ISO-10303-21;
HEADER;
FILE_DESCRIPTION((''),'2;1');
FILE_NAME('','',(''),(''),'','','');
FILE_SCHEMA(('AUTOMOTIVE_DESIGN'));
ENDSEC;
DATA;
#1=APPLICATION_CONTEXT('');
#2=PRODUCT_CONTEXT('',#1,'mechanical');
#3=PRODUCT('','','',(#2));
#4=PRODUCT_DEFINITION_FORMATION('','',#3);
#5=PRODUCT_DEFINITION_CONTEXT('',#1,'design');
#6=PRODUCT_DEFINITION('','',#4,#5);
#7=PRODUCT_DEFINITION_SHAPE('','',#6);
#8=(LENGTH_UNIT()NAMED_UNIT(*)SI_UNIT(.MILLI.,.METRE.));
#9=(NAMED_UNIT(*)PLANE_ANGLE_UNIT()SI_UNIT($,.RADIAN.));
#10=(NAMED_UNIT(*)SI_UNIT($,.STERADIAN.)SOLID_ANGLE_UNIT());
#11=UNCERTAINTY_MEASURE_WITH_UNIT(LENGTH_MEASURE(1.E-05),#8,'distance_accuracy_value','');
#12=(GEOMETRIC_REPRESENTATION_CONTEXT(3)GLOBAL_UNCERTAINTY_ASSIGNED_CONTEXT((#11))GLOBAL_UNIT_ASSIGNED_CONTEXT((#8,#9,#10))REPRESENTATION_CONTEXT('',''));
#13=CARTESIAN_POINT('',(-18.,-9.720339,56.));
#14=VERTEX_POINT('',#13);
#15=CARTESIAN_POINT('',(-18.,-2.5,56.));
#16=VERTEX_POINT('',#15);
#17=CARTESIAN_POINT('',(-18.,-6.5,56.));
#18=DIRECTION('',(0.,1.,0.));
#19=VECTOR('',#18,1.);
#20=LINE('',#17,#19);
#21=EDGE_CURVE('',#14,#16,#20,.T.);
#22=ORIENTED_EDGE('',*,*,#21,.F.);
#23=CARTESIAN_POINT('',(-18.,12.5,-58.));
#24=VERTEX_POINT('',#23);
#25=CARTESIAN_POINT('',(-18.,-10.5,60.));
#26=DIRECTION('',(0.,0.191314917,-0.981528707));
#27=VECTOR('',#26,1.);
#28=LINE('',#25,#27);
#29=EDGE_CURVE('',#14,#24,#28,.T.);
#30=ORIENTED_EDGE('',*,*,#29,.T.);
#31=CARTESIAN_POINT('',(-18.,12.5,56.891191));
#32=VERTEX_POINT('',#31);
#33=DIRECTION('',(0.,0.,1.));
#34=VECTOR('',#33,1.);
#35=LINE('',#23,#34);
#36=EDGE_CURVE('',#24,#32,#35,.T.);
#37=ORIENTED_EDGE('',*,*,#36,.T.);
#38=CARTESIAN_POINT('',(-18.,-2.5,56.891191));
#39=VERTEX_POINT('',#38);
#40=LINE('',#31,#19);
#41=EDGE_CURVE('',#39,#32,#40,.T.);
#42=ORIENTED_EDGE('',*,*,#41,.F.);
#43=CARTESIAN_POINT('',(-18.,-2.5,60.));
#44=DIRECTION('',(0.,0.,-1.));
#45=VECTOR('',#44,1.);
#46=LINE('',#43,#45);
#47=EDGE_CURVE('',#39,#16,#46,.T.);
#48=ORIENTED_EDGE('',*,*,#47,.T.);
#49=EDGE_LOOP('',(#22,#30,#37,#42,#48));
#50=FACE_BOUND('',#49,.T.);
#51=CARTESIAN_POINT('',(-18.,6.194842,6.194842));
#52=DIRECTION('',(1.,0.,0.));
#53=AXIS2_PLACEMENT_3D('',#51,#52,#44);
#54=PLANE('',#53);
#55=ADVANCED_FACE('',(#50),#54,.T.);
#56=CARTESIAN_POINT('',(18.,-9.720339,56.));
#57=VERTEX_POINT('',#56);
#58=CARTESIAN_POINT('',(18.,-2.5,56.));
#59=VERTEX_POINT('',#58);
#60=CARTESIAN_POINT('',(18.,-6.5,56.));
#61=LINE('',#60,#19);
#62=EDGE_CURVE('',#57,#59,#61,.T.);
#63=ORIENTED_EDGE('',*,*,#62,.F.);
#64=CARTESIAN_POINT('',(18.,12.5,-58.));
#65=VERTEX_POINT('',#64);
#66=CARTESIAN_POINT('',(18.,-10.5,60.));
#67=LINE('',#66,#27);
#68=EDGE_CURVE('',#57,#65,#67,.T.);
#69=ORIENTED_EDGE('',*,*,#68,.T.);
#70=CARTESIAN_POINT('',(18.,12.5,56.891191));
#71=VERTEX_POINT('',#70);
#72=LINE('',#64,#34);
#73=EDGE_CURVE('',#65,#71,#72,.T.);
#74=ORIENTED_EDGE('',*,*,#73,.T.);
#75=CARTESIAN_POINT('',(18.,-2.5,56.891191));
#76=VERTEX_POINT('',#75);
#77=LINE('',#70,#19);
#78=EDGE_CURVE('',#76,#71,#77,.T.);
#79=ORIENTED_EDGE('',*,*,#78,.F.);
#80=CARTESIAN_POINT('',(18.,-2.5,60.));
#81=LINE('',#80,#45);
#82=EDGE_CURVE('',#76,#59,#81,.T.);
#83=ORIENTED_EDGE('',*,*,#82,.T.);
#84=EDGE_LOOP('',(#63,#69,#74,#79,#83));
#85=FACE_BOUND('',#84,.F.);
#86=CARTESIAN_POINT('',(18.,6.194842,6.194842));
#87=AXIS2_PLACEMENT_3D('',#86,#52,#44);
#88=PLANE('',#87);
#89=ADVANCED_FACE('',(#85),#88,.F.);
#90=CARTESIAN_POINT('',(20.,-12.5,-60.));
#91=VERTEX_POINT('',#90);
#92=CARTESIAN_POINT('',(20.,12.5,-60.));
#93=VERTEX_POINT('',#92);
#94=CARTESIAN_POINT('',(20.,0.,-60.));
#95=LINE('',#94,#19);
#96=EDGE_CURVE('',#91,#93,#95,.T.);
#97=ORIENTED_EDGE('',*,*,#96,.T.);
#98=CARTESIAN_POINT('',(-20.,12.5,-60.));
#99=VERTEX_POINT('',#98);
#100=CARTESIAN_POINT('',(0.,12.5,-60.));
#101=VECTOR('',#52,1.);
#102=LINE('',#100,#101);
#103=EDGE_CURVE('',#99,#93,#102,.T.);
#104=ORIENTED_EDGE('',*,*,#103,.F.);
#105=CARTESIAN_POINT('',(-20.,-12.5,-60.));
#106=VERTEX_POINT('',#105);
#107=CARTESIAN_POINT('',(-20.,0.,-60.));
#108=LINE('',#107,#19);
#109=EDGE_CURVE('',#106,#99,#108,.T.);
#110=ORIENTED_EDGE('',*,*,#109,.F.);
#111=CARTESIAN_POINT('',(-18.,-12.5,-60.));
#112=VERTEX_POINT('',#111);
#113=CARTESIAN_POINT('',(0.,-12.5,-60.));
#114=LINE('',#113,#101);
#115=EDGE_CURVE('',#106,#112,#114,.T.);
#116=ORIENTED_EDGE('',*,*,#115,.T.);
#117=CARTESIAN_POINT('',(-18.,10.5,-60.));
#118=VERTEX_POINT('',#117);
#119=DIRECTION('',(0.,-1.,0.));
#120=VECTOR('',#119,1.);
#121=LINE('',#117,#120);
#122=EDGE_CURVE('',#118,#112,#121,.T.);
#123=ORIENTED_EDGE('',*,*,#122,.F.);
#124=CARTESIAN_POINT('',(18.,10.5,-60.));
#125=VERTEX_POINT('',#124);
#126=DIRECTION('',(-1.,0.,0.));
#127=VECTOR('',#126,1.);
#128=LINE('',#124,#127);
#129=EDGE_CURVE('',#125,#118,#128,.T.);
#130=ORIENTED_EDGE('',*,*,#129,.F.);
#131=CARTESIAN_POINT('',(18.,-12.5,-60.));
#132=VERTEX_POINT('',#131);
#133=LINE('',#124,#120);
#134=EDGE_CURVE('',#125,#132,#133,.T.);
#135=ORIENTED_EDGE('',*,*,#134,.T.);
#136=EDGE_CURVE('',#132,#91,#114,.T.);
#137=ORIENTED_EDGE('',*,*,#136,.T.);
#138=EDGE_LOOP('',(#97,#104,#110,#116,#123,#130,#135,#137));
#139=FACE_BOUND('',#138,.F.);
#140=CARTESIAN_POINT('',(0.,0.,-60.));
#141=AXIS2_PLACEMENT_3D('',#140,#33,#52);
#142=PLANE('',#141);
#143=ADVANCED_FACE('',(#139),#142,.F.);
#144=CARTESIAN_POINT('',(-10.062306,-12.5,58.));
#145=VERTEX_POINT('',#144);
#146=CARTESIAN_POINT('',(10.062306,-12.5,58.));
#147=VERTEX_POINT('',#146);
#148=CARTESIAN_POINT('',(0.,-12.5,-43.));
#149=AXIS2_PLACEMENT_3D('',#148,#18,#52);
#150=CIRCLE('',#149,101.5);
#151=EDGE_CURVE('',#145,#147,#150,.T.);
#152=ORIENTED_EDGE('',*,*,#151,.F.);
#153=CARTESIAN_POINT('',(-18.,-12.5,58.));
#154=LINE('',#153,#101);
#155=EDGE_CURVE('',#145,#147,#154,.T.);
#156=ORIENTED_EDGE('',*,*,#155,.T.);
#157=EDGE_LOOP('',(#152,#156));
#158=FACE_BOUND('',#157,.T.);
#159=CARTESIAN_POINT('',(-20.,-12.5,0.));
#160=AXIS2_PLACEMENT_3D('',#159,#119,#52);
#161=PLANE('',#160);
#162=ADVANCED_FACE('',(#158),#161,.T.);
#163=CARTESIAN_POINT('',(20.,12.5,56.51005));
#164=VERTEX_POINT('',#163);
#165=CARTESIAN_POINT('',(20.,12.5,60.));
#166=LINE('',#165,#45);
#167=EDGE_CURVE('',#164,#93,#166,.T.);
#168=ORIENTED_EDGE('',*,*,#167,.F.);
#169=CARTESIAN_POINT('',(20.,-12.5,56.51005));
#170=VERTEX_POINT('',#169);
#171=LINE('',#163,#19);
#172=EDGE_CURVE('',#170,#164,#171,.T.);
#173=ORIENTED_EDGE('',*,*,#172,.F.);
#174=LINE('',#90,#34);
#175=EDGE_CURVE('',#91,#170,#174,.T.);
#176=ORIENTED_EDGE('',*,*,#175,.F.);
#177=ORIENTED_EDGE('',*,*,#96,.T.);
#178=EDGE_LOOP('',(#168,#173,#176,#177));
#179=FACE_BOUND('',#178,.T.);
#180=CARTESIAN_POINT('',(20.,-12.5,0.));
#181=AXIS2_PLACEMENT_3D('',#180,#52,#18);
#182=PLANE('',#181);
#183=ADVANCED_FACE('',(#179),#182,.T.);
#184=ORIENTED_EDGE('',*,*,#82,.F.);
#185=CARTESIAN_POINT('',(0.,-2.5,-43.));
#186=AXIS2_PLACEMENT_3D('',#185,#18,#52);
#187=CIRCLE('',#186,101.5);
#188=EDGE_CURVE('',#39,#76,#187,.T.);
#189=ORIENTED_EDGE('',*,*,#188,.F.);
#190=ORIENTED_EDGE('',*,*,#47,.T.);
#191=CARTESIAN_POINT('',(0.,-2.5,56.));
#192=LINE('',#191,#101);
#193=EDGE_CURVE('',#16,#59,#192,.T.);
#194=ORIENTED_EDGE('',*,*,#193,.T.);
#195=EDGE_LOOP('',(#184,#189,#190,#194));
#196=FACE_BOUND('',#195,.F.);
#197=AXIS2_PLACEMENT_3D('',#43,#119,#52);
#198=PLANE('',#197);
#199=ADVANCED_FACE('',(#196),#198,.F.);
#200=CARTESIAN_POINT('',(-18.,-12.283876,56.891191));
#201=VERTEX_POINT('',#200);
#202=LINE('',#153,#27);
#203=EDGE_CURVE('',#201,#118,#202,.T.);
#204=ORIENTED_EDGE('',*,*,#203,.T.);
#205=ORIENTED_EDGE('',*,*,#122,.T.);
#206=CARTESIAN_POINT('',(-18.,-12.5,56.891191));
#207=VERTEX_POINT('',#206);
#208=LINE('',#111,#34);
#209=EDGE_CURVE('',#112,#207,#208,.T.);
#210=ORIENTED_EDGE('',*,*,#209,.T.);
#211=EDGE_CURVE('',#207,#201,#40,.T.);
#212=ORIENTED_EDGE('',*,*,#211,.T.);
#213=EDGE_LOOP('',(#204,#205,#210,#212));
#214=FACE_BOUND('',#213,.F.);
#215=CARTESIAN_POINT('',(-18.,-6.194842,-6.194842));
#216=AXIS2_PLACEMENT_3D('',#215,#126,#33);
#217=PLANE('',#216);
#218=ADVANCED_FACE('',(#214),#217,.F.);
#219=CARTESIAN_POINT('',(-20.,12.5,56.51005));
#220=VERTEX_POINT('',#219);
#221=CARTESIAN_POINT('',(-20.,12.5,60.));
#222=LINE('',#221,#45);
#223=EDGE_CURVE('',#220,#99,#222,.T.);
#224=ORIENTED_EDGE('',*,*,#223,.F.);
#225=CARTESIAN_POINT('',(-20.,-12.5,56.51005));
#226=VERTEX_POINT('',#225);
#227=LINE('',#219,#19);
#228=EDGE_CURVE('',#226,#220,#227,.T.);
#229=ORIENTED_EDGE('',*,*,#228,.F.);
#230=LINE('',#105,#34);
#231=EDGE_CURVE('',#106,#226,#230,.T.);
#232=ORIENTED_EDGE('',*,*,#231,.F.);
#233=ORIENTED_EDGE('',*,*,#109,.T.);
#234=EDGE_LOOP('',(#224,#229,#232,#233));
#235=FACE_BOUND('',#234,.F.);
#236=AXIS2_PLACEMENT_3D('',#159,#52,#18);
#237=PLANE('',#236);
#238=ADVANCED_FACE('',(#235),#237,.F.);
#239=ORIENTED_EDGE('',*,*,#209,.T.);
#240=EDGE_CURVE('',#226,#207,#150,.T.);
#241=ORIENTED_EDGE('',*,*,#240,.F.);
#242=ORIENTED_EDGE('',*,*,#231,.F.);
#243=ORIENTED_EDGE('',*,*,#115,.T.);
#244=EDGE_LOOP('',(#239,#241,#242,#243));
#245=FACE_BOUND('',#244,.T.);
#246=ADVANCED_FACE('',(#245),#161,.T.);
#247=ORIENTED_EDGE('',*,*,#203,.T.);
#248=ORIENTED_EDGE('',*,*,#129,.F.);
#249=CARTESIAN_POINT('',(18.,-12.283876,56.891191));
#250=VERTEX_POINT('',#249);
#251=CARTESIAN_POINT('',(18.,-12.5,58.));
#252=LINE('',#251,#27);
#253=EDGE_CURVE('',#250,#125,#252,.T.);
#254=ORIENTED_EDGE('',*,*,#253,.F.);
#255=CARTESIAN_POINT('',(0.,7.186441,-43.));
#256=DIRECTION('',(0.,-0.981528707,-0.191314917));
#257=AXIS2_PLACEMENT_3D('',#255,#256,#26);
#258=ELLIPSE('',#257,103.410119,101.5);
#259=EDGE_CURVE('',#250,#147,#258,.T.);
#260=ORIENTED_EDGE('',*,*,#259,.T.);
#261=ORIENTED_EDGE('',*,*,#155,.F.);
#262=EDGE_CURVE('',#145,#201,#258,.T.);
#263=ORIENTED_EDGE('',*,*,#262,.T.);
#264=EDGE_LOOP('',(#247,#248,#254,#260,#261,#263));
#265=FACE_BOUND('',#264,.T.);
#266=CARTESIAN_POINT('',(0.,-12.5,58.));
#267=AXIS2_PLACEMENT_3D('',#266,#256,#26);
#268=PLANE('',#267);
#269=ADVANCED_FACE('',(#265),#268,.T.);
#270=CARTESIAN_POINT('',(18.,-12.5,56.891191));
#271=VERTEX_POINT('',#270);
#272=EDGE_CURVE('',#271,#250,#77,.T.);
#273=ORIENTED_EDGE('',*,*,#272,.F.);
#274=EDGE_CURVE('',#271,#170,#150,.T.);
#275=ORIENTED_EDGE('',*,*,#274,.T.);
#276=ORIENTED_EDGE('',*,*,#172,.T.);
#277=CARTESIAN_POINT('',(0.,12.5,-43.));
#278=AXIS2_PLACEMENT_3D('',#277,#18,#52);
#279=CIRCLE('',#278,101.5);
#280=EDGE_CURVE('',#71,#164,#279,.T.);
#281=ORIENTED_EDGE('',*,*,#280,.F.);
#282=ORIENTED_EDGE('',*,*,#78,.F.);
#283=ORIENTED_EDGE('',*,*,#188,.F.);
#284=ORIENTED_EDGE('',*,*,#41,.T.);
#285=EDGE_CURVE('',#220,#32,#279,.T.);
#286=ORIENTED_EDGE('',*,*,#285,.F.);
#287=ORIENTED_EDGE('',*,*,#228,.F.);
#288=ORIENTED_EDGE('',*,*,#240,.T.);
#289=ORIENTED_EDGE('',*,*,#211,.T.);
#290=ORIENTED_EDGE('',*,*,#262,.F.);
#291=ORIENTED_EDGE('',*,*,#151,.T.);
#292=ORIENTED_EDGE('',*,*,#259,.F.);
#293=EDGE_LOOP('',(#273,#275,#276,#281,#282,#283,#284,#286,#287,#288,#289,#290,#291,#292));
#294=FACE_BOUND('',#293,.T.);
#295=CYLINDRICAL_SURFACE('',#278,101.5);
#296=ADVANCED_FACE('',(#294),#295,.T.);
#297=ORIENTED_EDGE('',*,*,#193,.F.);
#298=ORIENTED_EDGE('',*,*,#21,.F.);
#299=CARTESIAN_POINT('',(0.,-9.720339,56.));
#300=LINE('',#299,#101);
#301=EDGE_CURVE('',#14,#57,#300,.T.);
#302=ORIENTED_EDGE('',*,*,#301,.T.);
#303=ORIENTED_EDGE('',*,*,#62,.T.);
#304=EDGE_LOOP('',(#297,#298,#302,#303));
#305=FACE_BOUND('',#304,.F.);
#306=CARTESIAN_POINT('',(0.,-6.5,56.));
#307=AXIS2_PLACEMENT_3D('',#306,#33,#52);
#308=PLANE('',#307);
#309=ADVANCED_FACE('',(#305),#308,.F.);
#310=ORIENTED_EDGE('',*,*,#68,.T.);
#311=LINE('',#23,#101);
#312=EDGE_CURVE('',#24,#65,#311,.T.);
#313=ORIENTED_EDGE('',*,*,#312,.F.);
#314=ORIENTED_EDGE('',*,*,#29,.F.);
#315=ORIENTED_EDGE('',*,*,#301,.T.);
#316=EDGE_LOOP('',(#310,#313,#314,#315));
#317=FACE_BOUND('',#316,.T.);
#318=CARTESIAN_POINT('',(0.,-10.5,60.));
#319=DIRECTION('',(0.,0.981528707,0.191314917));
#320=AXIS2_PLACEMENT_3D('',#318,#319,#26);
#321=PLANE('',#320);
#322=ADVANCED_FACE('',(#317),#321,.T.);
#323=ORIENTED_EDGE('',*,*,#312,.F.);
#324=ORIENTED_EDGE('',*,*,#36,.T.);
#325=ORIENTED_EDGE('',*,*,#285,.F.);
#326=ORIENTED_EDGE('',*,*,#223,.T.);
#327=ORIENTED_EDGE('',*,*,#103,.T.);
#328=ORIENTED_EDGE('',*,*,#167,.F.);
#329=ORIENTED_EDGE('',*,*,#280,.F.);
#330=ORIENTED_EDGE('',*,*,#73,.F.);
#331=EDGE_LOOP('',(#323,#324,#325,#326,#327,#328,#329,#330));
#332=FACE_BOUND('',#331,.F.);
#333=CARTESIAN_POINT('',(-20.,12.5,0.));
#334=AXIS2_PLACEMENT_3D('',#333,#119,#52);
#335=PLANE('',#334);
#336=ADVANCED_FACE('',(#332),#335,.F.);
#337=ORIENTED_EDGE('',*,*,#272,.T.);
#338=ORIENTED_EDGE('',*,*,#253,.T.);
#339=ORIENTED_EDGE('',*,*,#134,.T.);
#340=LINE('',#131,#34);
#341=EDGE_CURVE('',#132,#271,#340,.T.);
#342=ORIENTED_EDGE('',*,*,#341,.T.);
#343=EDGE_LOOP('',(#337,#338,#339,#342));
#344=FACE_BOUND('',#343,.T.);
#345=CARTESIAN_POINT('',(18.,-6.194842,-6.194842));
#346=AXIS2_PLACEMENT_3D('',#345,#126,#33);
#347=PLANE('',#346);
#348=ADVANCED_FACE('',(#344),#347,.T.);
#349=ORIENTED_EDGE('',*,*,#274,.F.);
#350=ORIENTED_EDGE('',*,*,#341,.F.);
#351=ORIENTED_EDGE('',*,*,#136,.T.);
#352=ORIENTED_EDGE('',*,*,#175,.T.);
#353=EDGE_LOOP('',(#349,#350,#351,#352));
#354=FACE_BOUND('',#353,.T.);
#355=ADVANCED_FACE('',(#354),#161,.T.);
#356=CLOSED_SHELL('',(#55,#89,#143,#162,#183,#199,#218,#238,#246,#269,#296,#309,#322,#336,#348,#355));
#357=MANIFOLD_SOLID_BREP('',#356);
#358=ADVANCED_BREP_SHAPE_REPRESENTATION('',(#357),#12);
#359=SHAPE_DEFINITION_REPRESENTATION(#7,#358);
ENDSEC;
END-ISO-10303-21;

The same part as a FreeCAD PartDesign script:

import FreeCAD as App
import Part
import Sketcher
from FreeCAD import Vector

doc = App.newDocument("Part")
body = doc.addObject("PartDesign::Body", "Body")

# Sketch on XY plane
sketch1 = body.newObject("Sketcher::SketchObject", "Sketch")
sketch1.AttachmentSupport = (doc.getObject("XY_Plane"), [""])
sketch1.MapMode = "FlatFace"
sketch1.addGeometry([
    Part.LineSegment(Vector(-20, 12.5, 0), Vector(-20, -12.5, 0)),
    Part.LineSegment(Vector(-20, -12.5, 0), Vector(20, -12.5, 0)),
    Part.LineSegment(Vector(20, -12.5, 0), Vector(20, 12.5, 0)),
    Part.LineSegment(Vector(20, 12.5, 0), Vector(-20, 12.5, 0)),
], False)
sketch1.addConstraint([
    Sketcher.Constraint("Coincident", 0, 2, 1, 1),
    Sketcher.Constraint("Coincident", 1, 2, 2, 1),
    Sketcher.Constraint("Coincident", 2, 2, 3, 1),
    Sketcher.Constraint("Coincident", 3, 2, 0, 1),
    Sketcher.Constraint("Vertical", 0),
    Sketcher.Constraint("Horizontal", 1),
    Sketcher.Constraint("Vertical", 2),
    Sketcher.Constraint("Horizontal", 3),
    Sketcher.Constraint("Symmetric", 0, 2, 2, 2, -1, 1),
    Sketcher.Constraint("DistanceX", 1, 1, 1, 2, 40.0),
    Sketcher.Constraint("DistanceY", 0, 2, 0, 1, 25.0),
])
pad1 = body.newObject("PartDesign::Pad", "Pad")
pad1.Profile = sketch1
pad1.Length = 120
pad1.Midplane = True

# Sketch on YZ plane
sketch2 = body.newObject("Sketcher::SketchObject", "Sketch001")
sketch2.AttachmentSupport = (doc.getObject("YZ_Plane"), [""])
sketch2.MapMode = "FlatFace"
sketch2.addGeometry([
    Part.LineSegment(Vector(-10.5, 60, 0), Vector(12.5, -58, 0)),  # 0
    Part.LineSegment(Vector(12.5, -58, 0), Vector(12.5, 60, 0)),  # 1
    Part.LineSegment(Vector(12.5, 60, 0), Vector(-10.5, 60, 0)),  # 2
    Part.LineSegment(Vector(10.5, -60, 0), Vector(-12.5, 58, 0)),  # 3
    Part.LineSegment(Vector(-12.5, 58, 0), Vector(-12.5, -60, 0)),  # 4
    Part.LineSegment(Vector(-12.5, -60, 0), Vector(10.5, -60, 0)),  # 5
], False)
sketch2.addConstraint([
    Sketcher.Constraint("Coincident", 0, 2, 1, 1),
    Sketcher.Constraint("Coincident", 1, 2, 2, 1),
    Sketcher.Constraint("Coincident", 2, 2, 0, 1),
    Sketcher.Constraint("Coincident", 3, 2, 4, 1),
    Sketcher.Constraint("Coincident", 4, 2, 5, 1),
    Sketcher.Constraint("Coincident", 5, 2, 3, 1),
    Sketcher.Constraint("Vertical", 1),
    Sketcher.Constraint("Horizontal", 2),
    Sketcher.Constraint("Vertical", 4),
    Sketcher.Constraint("Horizontal", 5),
    Sketcher.Constraint("Symmetric", 0, 2, 3, 2, -1, 1),
    Sketcher.Constraint("Symmetric", 2, 2, 5, 2, -1, 1),
    Sketcher.Constraint("DistanceX", 2, 2, 2, 1, 23.0),
    Sketcher.Constraint("DistanceY", 1, 1, 1, 2, 118.0),
    Sketcher.Constraint("DistanceY", 0, 2, -1, 1, 58.0),
    Sketcher.Constraint("DistanceX", 3, 2, 2, 2, 2.0),
])
pocket1 = body.newObject("PartDesign::Pocket", "Pocket")
pocket1.Profile = sketch2
pocket1.Length = 36
pocket1.Midplane = True

# Sketch on XY plane
sketch3 = body.newObject("Sketcher::SketchObject", "Sketch002")
sketch3.AttachmentSupport = (doc.getObject("XY_Plane"), [""])
sketch3.MapMode = "FlatFace"
sketch3.AttachmentOffset = App.Placement(Vector(0, 0, 60), App.Rotation())
sketch3.addGeometry([
    Part.LineSegment(Vector(-18, -2.5, 0), Vector(-18, -10.5, 0)),
    Part.LineSegment(Vector(-18, -10.5, 0), Vector(18, -10.5, 0)),
    Part.LineSegment(Vector(18, -10.5, 0), Vector(18, -2.5, 0)),
    Part.LineSegment(Vector(18, -2.5, 0), Vector(-18, -2.5, 0)),
], False)
sketch3.addConstraint([
    Sketcher.Constraint("Coincident", 0, 2, 1, 1),
    Sketcher.Constraint("Coincident", 1, 2, 2, 1),
    Sketcher.Constraint("Coincident", 2, 2, 3, 1),
    Sketcher.Constraint("Coincident", 3, 2, 0, 1),
    Sketcher.Constraint("Vertical", 0),
    Sketcher.Constraint("Horizontal", 1),
    Sketcher.Constraint("Vertical", 2),
    Sketcher.Constraint("Horizontal", 3),
    Sketcher.Constraint("DistanceX", 1, 1, 1, 2, 36.0),
    Sketcher.Constraint("DistanceY", 0, 2, 0, 1, 8.0),
    Sketcher.Constraint("DistanceX", 0, 2, -1, 1, 18.0),
    Sketcher.Constraint("DistanceY", 0, 2, -1, 1, 10.5),
])
pad2 = body.newObject("PartDesign::Pad", "Pad001")
pad2.Profile = sketch3
pad2.Length = 4
pad2.Reversed = True

# Sketch on XZ plane
sketch4 = body.newObject("Sketcher::SketchObject", "Sketch003")
sketch4.AttachmentSupport = (doc.getObject("XZ_Plane"), [""])
sketch4.MapMode = "FlatFace"
sketch4.AttachmentOffset = App.Placement(Vector(0, 0, -12.5), App.Rotation())
sketch4.addGeometry([
    Part.Circle(Vector(0, -43, 0), Vector(0, 0, 1), 500),
    Part.Circle(Vector(0, -43, 0), Vector(0, 0, 1), 101.5),
], False)
sketch4.addConstraint([
    Sketcher.Constraint("Coincident", 1, 3, 0, 3),
    Sketcher.Constraint("PointOnObject", 0, 3, -2),
    Sketcher.Constraint("Diameter", 0, 1000.0),
    Sketcher.Constraint("Diameter", 1, 203.0),
    Sketcher.Constraint("DistanceY", 0, 3, -1, 1, 43.0),
])
pocket2 = body.newObject("PartDesign::Pocket", "Pocket001")
pocket2.Profile = sketch4
pocket2.Type = "ThroughAll"
pocket2.Reversed = True

doc.recompute()
